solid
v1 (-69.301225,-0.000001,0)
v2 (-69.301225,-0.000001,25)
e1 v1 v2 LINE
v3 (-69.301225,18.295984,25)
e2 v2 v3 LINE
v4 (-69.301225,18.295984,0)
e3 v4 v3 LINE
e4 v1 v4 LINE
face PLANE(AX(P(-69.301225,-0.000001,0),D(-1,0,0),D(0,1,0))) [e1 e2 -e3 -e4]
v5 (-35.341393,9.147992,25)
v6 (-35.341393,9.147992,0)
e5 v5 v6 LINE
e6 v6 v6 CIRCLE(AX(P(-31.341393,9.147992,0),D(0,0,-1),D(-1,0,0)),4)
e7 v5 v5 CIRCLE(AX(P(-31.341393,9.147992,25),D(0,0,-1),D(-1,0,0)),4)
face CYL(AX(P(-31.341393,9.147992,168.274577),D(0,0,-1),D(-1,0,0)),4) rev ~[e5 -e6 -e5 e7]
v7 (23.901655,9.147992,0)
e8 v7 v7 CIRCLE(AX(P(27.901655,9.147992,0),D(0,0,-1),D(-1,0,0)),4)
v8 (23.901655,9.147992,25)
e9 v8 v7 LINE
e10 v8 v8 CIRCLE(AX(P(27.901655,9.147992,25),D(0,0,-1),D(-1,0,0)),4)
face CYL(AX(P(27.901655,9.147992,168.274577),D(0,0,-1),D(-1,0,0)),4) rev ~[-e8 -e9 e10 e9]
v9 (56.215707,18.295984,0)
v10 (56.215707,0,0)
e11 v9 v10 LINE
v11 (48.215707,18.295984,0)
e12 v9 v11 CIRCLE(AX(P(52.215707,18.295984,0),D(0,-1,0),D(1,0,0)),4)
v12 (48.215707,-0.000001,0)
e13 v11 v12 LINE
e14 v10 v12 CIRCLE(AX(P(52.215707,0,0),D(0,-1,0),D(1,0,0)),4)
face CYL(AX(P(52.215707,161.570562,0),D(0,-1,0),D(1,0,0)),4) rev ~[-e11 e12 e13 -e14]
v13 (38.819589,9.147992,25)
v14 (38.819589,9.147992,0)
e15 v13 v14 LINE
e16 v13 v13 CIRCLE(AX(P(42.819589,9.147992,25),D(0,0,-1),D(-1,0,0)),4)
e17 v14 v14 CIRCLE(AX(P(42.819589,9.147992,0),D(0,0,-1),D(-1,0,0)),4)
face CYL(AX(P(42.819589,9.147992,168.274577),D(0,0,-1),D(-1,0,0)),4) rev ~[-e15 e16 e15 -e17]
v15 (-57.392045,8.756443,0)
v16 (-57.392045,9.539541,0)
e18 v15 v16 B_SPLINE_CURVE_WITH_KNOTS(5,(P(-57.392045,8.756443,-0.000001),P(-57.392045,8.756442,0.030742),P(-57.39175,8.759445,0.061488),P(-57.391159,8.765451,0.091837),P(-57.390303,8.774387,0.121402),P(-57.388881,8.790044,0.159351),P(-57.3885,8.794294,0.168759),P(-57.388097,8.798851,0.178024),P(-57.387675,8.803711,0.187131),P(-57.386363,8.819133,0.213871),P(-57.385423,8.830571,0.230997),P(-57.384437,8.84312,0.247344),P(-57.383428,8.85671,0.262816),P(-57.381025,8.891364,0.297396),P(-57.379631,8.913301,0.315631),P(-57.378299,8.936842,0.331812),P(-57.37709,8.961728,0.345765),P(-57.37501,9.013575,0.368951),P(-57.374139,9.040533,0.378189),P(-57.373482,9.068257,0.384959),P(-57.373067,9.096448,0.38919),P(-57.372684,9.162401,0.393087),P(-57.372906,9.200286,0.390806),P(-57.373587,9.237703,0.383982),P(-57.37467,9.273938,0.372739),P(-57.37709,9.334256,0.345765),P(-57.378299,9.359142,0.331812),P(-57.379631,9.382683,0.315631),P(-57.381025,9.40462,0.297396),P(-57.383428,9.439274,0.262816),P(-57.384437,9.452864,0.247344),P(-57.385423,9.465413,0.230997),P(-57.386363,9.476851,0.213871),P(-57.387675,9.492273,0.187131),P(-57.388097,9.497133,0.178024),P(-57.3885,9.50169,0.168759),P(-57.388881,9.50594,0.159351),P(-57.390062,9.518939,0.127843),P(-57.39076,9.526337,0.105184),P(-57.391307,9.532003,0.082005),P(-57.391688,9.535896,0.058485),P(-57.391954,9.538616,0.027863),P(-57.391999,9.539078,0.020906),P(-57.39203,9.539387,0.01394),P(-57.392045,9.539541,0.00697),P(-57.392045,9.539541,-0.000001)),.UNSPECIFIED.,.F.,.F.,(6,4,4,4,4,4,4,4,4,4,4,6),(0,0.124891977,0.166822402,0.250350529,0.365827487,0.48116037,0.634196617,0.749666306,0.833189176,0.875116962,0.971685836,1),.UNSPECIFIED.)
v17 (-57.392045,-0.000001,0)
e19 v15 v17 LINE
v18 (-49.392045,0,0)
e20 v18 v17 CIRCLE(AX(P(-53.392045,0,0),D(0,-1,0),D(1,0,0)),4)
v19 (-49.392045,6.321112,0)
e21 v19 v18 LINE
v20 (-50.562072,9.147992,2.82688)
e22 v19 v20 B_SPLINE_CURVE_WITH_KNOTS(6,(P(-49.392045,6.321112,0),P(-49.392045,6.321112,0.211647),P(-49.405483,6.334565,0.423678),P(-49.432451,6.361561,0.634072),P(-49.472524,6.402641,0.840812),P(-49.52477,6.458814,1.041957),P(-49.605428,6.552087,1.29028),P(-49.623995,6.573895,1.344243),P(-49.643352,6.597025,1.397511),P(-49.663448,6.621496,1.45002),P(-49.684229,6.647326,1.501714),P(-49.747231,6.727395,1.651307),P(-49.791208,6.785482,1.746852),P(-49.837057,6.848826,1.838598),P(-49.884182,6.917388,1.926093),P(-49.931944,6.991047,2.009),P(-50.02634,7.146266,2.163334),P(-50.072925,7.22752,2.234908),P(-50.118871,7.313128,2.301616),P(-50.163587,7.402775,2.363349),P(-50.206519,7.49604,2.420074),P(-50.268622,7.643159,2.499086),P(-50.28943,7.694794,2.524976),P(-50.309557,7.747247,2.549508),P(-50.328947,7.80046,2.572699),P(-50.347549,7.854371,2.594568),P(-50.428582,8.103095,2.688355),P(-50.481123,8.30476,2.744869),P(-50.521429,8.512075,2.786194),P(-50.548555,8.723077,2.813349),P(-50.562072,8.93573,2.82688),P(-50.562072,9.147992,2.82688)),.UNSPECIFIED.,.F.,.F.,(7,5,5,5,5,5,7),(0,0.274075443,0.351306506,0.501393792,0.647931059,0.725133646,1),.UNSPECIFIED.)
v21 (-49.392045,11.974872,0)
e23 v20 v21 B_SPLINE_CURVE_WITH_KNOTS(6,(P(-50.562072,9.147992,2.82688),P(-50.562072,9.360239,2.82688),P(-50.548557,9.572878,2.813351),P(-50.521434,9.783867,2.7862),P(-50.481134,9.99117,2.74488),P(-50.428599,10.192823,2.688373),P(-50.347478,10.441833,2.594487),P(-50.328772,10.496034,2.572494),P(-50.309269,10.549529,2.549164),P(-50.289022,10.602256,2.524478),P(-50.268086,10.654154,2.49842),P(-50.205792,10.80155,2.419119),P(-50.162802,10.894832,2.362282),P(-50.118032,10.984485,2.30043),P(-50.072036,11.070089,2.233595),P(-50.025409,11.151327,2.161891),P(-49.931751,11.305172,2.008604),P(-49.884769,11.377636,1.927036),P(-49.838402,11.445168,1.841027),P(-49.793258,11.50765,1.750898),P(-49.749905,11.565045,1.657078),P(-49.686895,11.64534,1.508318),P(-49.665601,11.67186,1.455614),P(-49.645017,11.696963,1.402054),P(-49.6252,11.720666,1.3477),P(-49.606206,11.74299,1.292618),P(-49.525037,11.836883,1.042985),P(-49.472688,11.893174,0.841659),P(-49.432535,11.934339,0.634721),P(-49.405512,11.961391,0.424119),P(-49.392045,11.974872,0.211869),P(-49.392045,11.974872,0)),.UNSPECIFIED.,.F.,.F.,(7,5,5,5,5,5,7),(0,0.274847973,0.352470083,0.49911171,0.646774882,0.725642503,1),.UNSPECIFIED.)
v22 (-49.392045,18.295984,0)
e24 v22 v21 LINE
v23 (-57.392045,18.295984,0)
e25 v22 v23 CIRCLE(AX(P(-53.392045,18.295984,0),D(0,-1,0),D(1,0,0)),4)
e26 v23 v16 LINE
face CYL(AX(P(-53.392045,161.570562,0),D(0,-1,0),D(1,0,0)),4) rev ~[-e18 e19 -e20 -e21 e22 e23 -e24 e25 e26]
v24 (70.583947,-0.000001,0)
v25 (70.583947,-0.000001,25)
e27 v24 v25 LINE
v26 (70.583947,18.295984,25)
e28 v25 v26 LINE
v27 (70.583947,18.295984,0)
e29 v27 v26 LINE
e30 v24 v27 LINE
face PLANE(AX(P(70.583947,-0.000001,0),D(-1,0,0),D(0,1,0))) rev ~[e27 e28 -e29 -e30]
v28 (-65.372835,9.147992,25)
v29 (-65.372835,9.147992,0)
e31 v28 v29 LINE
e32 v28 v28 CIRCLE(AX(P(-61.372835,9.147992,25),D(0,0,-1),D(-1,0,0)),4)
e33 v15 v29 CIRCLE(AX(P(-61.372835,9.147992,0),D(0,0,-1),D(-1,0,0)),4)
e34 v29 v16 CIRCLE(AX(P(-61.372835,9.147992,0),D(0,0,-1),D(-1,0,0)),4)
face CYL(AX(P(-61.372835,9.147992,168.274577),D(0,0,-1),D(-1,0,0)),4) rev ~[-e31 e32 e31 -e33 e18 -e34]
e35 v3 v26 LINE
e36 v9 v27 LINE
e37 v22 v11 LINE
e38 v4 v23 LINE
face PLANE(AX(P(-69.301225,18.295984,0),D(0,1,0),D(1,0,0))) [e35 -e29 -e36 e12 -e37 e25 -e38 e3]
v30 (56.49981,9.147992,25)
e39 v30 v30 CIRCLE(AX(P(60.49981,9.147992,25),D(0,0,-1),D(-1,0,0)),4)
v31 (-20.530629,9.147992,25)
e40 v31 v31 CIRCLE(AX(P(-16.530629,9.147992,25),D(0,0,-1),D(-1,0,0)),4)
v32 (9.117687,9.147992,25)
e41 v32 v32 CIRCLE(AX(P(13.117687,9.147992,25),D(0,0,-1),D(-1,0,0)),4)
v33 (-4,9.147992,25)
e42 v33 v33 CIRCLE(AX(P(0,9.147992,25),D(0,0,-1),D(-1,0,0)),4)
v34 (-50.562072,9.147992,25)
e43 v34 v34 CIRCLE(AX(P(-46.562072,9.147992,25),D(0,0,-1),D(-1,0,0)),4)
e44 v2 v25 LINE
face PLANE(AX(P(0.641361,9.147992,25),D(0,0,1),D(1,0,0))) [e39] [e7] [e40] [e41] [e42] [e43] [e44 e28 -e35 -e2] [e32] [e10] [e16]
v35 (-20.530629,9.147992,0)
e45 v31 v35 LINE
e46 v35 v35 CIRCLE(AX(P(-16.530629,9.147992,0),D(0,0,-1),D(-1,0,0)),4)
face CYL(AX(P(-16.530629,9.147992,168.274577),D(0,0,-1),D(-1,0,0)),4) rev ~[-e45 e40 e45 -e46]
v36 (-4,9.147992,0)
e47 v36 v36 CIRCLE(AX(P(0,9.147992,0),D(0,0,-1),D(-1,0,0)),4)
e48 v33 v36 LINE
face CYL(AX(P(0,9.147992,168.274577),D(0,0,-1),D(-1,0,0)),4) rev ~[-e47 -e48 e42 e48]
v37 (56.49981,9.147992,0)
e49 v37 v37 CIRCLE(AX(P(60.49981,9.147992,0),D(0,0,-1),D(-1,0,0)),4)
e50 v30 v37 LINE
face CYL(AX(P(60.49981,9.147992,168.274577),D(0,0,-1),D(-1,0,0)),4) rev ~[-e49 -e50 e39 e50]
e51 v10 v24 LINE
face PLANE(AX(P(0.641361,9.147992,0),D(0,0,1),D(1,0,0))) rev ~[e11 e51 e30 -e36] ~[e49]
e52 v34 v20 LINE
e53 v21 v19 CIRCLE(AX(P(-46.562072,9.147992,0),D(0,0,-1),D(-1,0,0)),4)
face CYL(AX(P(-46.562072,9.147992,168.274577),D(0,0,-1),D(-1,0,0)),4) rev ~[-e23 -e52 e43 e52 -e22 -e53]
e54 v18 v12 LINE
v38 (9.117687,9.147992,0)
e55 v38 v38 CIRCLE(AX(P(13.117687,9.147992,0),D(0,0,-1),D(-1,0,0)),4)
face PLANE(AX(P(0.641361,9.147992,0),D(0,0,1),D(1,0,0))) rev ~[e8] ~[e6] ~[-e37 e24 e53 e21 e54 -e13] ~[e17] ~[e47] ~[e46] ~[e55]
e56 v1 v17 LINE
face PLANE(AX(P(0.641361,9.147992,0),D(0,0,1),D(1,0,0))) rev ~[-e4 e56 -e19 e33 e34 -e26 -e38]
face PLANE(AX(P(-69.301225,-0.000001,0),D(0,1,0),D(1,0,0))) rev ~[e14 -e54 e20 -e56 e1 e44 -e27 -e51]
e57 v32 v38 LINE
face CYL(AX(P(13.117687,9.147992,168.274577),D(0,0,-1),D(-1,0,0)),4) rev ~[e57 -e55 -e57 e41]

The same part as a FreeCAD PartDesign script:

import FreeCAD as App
import Part
import Sketcher
Q = App.Units.Quantity

doc = App.newDocument("Part")
body = doc.addObject("PartDesign::Body", "Body")

sketch1 = body.newObject("Sketcher::SketchObject", "Sketch")
sketch1.AttachmentSupport = (doc.getObject("XY_Plane"), [""])
sketch1.MapMode = "FlatFace"
sketch1.addGeometry(Part.LineSegment(App.Vector(-69, 18, 0), App.Vector(-69, 0, 0)), False)
sketch1.addGeometry(Part.LineSegment(App.Vector(-69, 0, 0), App.Vector(71, 0, 0)), False)
sketch1.addGeometry(Part.LineSegment(App.Vector(71, 0, 0), App.Vector(71, 18, 0)), False)
sketch1.addGeometry(Part.LineSegment(App.Vector(71, 18, 0), App.Vector(-69, 18, 0)), False)
sketch1.addConstraint(Sketcher.Constraint("Coincident", 0, 2, 1, 1))
sketch1.addConstraint(Sketcher.Constraint("Coincident", 1, 2, 2, 1))
sketch1.addConstraint(Sketcher.Constraint("Coincident", 2, 2, 3, 1))
sketch1.addConstraint(Sketcher.Constraint("Coincident", 3, 2, 0, 1))
sketch1.addConstraint(Sketcher.Constraint("Vertical", 0))
sketch1.addConstraint(Sketcher.Constraint("Horizontal", 1))
sketch1.addConstraint(Sketcher.Constraint("Vertical", 2))
sketch1.addConstraint(Sketcher.Constraint("Horizontal", 3))
sketch1.addConstraint(Sketcher.Constraint("PointOnObject", 0, 2, -1))
sketch1.addConstraint(Sketcher.Constraint("DistanceX", 1, 1, 1, 2, Q("139.885172 mm")))
sketch1.addConstraint(Sketcher.Constraint("DistanceY", 0, 2, 0, 1, Q("18.295985 mm")))
sketch1.addConstraint(Sketcher.Constraint("DistanceX", 0, 2, -1, 1, Q("69.301225 mm")))
pad1 = body.newObject("PartDesign::Pad", "Pad")
pad1.Profile = sketch1
pad1.Length = 25

sketch2 = body.newObject("Sketcher::SketchObject", "Sketch001")
sketch2.AttachmentSupport = (doc.getObject("XY_Plane"), [""])
sketch2.MapMode = "FlatFace"
sketch2.AttachmentOffset = App.Placement(App.Vector(0, 0, 25), App.Rotation())
sketch2.addGeometry(Part.Circle(App.Vector(-61.4, 9.1, 0), App.Vector(0, 0, 1), 4), False)
sketch2.addGeometry(Part.Circle(App.Vector(-46.6, 9.1, 0), App.Vector(0, 0, 1), 4), False)
sketch2.addGeometry(Part.Circle(App.Vector(-31.3, 9.1, 0), App.Vector(0, 0, 1), 4), False)
sketch2.addGeometry(Part.Circle(App.Vector(-16.5, 9.1, 0), App.Vector(0, 0, 1), 4), False)
sketch2.addGeometry(Part.Circle(App.Vector(0, 9.1, 0), App.Vector(0, 0, 1), 4), False)
sketch2.addGeometry(Part.Circle(App.Vector(13.1, 9.1, 0), App.Vector(0, 0, 1), 4), False)
sketch2.addGeometry(Part.Circle(App.Vector(27.9, 9.1, 0), App.Vector(0, 0, 1), 4), False)
sketch2.addGeometry(Part.Circle(App.Vector(42.8, 9.1, 0), App.Vector(0, 0, 1), 4), False)
sketch2.addGeometry(Part.Circle(App.Vector(60.5, 9.1, 0), App.Vector(0, 0, 1), 4), False)
sketch2.addConstraint(Sketcher.Constraint("Equal", 0, 1))
sketch2.addConstraint(Sketcher.Constraint("Equal", 1, 2))
sketch2.addConstraint(Sketcher.Constraint("Equal", 2, 3))
sketch2.addConstraint(Sketcher.Constraint("Equal", 3, 4))
sketch2.addConstraint(Sketcher.Constraint("Equal", 4, 5))
sketch2.addConstraint(Sketcher.Constraint("Equal", 5, 6))
sketch2.addConstraint(Sketcher.Constraint("Equal", 6, 7))
sketch2.addConstraint(Sketcher.Constraint("Equal", 7, 8))
sketch2.addConstraint(Sketcher.Constraint("PointOnObject", 4, 3, -2))
sketch2.addConstraint(Sketcher.Constraint("Horizontal", 0, 3, 1, 3))
sketch2.addConstraint(Sketcher.Constraint("Horizontal", 1, 3, 2, 3))
sketch2.addConstraint(Sketcher.Constraint("Horizontal", 2, 3, 3, 3))
sketch2.addConstraint(Sketcher.Constraint("Horizontal", 3, 3, 4, 3))
sketch2.addConstraint(Sketcher.Constraint("Horizontal", 4, 3, 5, 3))
sketch2.addConstraint(Sketcher.Constraint("Horizontal", 5, 3, 6, 3))
sketch2.addConstraint(Sketcher.Constraint("Horizontal", 6, 3, 7, 3))
sketch2.addConstraint(Sketcher.Constraint("Horizontal", 7, 3, 8, 3))
sketch2.addConstraint(Sketcher.Constraint("Diameter", 0, Q("8 mm")))
sketch2.addConstraint(Sketcher.Constraint("DistanceX", 3, 3, -1, 1, Q("16.530629 mm")))
sketch2.addConstraint(Sketcher.Constraint("DistanceX", -1, 1, 7, 3, Q("42.819589 mm")))
sketch2.addConstraint(Sketcher.Constraint("DistanceX", -1, 1, 8, 3, Q("60.49981 mm")))
sketch2.addConstraint(Sketcher.Constraint("DistanceX", 1, 3, 2, 3, Q("15.220679 mm")))
sketch2.addConstraint(Sketcher.Constraint("DistanceX", 2, 3, 5, 3, Q("44.45908 mm")))
sketch2.addConstraint(Sketcher.Constraint("DistanceX", 0, 3, 5, 3, Q("74.490522 mm")))
sketch2.addConstraint(Sketcher.Constraint("DistanceX", 5, 3, 6, 3, Q("14.783968 mm")))
sketch2.addConstraint(Sketcher.Constraint("DistanceX", 0, 3, -1, 1, Q("61.372835 mm")))
sketch2.addConstraint(Sketcher.Constraint("DistanceY", -1, 1, 0, 3, Q("9.147992 mm")))
doc.recompute()
hole = body.newObject("PartDesign::Hole", "Hole")
hole.Profile = sketch2
hole.ThreadType = "None"
hole.Diameter = 8
hole.DepthType = "ThroughAll"

sketch3 = body.newObject("Sketcher::SketchObject", "Sketch002")
sketch3.AttachmentSupport = (doc.getObject("XZ_Plane"), [""])
sketch3.MapMode = "FlatFace"
sketch3.AttachmentOffset = App.Placement(App.Vector(0, 0, -18.295985), App.Rotation())
sketch3.addGeometry(Part.Circle(App.Vector(52.2, 0, 0), App.Vector(0, 0, 1), 4), False)
sketch3.addGeometry(Part.Circle(App.Vector(-53.4, 0, 0), App.Vector(0, 0, 1), 4), False)
sketch3.addConstraint(Sketcher.Constraint("Equal", 0, 1))
sketch3.addConstraint(Sketcher.Constraint("PointOnObject", 0, 3, -1))
sketch3.addConstraint(Sketcher.Constraint("PointOnObject", 1, 3, -1))
sketch3.addConstraint(Sketcher.Constraint("Diameter", 0, Q("8 mm")))
sketch3.addConstraint(Sketcher.Constraint("DistanceX", -1, 1, 0, 3, Q("52.215707 mm")))
sketch3.addConstraint(Sketcher.Constraint("DistanceX", 1, 3, -1, 1, Q("53.392045 mm")))
doc.recompute()
hole2 = body.newObject("PartDesign::Hole", "Hole001")
hole2.Profile = sketch3
hole2.ThreadType = "None"
hole2.Diameter = 8
hole2.DepthType = "ThroughAll"
hole2.Reversed = True

doc.recompute()
